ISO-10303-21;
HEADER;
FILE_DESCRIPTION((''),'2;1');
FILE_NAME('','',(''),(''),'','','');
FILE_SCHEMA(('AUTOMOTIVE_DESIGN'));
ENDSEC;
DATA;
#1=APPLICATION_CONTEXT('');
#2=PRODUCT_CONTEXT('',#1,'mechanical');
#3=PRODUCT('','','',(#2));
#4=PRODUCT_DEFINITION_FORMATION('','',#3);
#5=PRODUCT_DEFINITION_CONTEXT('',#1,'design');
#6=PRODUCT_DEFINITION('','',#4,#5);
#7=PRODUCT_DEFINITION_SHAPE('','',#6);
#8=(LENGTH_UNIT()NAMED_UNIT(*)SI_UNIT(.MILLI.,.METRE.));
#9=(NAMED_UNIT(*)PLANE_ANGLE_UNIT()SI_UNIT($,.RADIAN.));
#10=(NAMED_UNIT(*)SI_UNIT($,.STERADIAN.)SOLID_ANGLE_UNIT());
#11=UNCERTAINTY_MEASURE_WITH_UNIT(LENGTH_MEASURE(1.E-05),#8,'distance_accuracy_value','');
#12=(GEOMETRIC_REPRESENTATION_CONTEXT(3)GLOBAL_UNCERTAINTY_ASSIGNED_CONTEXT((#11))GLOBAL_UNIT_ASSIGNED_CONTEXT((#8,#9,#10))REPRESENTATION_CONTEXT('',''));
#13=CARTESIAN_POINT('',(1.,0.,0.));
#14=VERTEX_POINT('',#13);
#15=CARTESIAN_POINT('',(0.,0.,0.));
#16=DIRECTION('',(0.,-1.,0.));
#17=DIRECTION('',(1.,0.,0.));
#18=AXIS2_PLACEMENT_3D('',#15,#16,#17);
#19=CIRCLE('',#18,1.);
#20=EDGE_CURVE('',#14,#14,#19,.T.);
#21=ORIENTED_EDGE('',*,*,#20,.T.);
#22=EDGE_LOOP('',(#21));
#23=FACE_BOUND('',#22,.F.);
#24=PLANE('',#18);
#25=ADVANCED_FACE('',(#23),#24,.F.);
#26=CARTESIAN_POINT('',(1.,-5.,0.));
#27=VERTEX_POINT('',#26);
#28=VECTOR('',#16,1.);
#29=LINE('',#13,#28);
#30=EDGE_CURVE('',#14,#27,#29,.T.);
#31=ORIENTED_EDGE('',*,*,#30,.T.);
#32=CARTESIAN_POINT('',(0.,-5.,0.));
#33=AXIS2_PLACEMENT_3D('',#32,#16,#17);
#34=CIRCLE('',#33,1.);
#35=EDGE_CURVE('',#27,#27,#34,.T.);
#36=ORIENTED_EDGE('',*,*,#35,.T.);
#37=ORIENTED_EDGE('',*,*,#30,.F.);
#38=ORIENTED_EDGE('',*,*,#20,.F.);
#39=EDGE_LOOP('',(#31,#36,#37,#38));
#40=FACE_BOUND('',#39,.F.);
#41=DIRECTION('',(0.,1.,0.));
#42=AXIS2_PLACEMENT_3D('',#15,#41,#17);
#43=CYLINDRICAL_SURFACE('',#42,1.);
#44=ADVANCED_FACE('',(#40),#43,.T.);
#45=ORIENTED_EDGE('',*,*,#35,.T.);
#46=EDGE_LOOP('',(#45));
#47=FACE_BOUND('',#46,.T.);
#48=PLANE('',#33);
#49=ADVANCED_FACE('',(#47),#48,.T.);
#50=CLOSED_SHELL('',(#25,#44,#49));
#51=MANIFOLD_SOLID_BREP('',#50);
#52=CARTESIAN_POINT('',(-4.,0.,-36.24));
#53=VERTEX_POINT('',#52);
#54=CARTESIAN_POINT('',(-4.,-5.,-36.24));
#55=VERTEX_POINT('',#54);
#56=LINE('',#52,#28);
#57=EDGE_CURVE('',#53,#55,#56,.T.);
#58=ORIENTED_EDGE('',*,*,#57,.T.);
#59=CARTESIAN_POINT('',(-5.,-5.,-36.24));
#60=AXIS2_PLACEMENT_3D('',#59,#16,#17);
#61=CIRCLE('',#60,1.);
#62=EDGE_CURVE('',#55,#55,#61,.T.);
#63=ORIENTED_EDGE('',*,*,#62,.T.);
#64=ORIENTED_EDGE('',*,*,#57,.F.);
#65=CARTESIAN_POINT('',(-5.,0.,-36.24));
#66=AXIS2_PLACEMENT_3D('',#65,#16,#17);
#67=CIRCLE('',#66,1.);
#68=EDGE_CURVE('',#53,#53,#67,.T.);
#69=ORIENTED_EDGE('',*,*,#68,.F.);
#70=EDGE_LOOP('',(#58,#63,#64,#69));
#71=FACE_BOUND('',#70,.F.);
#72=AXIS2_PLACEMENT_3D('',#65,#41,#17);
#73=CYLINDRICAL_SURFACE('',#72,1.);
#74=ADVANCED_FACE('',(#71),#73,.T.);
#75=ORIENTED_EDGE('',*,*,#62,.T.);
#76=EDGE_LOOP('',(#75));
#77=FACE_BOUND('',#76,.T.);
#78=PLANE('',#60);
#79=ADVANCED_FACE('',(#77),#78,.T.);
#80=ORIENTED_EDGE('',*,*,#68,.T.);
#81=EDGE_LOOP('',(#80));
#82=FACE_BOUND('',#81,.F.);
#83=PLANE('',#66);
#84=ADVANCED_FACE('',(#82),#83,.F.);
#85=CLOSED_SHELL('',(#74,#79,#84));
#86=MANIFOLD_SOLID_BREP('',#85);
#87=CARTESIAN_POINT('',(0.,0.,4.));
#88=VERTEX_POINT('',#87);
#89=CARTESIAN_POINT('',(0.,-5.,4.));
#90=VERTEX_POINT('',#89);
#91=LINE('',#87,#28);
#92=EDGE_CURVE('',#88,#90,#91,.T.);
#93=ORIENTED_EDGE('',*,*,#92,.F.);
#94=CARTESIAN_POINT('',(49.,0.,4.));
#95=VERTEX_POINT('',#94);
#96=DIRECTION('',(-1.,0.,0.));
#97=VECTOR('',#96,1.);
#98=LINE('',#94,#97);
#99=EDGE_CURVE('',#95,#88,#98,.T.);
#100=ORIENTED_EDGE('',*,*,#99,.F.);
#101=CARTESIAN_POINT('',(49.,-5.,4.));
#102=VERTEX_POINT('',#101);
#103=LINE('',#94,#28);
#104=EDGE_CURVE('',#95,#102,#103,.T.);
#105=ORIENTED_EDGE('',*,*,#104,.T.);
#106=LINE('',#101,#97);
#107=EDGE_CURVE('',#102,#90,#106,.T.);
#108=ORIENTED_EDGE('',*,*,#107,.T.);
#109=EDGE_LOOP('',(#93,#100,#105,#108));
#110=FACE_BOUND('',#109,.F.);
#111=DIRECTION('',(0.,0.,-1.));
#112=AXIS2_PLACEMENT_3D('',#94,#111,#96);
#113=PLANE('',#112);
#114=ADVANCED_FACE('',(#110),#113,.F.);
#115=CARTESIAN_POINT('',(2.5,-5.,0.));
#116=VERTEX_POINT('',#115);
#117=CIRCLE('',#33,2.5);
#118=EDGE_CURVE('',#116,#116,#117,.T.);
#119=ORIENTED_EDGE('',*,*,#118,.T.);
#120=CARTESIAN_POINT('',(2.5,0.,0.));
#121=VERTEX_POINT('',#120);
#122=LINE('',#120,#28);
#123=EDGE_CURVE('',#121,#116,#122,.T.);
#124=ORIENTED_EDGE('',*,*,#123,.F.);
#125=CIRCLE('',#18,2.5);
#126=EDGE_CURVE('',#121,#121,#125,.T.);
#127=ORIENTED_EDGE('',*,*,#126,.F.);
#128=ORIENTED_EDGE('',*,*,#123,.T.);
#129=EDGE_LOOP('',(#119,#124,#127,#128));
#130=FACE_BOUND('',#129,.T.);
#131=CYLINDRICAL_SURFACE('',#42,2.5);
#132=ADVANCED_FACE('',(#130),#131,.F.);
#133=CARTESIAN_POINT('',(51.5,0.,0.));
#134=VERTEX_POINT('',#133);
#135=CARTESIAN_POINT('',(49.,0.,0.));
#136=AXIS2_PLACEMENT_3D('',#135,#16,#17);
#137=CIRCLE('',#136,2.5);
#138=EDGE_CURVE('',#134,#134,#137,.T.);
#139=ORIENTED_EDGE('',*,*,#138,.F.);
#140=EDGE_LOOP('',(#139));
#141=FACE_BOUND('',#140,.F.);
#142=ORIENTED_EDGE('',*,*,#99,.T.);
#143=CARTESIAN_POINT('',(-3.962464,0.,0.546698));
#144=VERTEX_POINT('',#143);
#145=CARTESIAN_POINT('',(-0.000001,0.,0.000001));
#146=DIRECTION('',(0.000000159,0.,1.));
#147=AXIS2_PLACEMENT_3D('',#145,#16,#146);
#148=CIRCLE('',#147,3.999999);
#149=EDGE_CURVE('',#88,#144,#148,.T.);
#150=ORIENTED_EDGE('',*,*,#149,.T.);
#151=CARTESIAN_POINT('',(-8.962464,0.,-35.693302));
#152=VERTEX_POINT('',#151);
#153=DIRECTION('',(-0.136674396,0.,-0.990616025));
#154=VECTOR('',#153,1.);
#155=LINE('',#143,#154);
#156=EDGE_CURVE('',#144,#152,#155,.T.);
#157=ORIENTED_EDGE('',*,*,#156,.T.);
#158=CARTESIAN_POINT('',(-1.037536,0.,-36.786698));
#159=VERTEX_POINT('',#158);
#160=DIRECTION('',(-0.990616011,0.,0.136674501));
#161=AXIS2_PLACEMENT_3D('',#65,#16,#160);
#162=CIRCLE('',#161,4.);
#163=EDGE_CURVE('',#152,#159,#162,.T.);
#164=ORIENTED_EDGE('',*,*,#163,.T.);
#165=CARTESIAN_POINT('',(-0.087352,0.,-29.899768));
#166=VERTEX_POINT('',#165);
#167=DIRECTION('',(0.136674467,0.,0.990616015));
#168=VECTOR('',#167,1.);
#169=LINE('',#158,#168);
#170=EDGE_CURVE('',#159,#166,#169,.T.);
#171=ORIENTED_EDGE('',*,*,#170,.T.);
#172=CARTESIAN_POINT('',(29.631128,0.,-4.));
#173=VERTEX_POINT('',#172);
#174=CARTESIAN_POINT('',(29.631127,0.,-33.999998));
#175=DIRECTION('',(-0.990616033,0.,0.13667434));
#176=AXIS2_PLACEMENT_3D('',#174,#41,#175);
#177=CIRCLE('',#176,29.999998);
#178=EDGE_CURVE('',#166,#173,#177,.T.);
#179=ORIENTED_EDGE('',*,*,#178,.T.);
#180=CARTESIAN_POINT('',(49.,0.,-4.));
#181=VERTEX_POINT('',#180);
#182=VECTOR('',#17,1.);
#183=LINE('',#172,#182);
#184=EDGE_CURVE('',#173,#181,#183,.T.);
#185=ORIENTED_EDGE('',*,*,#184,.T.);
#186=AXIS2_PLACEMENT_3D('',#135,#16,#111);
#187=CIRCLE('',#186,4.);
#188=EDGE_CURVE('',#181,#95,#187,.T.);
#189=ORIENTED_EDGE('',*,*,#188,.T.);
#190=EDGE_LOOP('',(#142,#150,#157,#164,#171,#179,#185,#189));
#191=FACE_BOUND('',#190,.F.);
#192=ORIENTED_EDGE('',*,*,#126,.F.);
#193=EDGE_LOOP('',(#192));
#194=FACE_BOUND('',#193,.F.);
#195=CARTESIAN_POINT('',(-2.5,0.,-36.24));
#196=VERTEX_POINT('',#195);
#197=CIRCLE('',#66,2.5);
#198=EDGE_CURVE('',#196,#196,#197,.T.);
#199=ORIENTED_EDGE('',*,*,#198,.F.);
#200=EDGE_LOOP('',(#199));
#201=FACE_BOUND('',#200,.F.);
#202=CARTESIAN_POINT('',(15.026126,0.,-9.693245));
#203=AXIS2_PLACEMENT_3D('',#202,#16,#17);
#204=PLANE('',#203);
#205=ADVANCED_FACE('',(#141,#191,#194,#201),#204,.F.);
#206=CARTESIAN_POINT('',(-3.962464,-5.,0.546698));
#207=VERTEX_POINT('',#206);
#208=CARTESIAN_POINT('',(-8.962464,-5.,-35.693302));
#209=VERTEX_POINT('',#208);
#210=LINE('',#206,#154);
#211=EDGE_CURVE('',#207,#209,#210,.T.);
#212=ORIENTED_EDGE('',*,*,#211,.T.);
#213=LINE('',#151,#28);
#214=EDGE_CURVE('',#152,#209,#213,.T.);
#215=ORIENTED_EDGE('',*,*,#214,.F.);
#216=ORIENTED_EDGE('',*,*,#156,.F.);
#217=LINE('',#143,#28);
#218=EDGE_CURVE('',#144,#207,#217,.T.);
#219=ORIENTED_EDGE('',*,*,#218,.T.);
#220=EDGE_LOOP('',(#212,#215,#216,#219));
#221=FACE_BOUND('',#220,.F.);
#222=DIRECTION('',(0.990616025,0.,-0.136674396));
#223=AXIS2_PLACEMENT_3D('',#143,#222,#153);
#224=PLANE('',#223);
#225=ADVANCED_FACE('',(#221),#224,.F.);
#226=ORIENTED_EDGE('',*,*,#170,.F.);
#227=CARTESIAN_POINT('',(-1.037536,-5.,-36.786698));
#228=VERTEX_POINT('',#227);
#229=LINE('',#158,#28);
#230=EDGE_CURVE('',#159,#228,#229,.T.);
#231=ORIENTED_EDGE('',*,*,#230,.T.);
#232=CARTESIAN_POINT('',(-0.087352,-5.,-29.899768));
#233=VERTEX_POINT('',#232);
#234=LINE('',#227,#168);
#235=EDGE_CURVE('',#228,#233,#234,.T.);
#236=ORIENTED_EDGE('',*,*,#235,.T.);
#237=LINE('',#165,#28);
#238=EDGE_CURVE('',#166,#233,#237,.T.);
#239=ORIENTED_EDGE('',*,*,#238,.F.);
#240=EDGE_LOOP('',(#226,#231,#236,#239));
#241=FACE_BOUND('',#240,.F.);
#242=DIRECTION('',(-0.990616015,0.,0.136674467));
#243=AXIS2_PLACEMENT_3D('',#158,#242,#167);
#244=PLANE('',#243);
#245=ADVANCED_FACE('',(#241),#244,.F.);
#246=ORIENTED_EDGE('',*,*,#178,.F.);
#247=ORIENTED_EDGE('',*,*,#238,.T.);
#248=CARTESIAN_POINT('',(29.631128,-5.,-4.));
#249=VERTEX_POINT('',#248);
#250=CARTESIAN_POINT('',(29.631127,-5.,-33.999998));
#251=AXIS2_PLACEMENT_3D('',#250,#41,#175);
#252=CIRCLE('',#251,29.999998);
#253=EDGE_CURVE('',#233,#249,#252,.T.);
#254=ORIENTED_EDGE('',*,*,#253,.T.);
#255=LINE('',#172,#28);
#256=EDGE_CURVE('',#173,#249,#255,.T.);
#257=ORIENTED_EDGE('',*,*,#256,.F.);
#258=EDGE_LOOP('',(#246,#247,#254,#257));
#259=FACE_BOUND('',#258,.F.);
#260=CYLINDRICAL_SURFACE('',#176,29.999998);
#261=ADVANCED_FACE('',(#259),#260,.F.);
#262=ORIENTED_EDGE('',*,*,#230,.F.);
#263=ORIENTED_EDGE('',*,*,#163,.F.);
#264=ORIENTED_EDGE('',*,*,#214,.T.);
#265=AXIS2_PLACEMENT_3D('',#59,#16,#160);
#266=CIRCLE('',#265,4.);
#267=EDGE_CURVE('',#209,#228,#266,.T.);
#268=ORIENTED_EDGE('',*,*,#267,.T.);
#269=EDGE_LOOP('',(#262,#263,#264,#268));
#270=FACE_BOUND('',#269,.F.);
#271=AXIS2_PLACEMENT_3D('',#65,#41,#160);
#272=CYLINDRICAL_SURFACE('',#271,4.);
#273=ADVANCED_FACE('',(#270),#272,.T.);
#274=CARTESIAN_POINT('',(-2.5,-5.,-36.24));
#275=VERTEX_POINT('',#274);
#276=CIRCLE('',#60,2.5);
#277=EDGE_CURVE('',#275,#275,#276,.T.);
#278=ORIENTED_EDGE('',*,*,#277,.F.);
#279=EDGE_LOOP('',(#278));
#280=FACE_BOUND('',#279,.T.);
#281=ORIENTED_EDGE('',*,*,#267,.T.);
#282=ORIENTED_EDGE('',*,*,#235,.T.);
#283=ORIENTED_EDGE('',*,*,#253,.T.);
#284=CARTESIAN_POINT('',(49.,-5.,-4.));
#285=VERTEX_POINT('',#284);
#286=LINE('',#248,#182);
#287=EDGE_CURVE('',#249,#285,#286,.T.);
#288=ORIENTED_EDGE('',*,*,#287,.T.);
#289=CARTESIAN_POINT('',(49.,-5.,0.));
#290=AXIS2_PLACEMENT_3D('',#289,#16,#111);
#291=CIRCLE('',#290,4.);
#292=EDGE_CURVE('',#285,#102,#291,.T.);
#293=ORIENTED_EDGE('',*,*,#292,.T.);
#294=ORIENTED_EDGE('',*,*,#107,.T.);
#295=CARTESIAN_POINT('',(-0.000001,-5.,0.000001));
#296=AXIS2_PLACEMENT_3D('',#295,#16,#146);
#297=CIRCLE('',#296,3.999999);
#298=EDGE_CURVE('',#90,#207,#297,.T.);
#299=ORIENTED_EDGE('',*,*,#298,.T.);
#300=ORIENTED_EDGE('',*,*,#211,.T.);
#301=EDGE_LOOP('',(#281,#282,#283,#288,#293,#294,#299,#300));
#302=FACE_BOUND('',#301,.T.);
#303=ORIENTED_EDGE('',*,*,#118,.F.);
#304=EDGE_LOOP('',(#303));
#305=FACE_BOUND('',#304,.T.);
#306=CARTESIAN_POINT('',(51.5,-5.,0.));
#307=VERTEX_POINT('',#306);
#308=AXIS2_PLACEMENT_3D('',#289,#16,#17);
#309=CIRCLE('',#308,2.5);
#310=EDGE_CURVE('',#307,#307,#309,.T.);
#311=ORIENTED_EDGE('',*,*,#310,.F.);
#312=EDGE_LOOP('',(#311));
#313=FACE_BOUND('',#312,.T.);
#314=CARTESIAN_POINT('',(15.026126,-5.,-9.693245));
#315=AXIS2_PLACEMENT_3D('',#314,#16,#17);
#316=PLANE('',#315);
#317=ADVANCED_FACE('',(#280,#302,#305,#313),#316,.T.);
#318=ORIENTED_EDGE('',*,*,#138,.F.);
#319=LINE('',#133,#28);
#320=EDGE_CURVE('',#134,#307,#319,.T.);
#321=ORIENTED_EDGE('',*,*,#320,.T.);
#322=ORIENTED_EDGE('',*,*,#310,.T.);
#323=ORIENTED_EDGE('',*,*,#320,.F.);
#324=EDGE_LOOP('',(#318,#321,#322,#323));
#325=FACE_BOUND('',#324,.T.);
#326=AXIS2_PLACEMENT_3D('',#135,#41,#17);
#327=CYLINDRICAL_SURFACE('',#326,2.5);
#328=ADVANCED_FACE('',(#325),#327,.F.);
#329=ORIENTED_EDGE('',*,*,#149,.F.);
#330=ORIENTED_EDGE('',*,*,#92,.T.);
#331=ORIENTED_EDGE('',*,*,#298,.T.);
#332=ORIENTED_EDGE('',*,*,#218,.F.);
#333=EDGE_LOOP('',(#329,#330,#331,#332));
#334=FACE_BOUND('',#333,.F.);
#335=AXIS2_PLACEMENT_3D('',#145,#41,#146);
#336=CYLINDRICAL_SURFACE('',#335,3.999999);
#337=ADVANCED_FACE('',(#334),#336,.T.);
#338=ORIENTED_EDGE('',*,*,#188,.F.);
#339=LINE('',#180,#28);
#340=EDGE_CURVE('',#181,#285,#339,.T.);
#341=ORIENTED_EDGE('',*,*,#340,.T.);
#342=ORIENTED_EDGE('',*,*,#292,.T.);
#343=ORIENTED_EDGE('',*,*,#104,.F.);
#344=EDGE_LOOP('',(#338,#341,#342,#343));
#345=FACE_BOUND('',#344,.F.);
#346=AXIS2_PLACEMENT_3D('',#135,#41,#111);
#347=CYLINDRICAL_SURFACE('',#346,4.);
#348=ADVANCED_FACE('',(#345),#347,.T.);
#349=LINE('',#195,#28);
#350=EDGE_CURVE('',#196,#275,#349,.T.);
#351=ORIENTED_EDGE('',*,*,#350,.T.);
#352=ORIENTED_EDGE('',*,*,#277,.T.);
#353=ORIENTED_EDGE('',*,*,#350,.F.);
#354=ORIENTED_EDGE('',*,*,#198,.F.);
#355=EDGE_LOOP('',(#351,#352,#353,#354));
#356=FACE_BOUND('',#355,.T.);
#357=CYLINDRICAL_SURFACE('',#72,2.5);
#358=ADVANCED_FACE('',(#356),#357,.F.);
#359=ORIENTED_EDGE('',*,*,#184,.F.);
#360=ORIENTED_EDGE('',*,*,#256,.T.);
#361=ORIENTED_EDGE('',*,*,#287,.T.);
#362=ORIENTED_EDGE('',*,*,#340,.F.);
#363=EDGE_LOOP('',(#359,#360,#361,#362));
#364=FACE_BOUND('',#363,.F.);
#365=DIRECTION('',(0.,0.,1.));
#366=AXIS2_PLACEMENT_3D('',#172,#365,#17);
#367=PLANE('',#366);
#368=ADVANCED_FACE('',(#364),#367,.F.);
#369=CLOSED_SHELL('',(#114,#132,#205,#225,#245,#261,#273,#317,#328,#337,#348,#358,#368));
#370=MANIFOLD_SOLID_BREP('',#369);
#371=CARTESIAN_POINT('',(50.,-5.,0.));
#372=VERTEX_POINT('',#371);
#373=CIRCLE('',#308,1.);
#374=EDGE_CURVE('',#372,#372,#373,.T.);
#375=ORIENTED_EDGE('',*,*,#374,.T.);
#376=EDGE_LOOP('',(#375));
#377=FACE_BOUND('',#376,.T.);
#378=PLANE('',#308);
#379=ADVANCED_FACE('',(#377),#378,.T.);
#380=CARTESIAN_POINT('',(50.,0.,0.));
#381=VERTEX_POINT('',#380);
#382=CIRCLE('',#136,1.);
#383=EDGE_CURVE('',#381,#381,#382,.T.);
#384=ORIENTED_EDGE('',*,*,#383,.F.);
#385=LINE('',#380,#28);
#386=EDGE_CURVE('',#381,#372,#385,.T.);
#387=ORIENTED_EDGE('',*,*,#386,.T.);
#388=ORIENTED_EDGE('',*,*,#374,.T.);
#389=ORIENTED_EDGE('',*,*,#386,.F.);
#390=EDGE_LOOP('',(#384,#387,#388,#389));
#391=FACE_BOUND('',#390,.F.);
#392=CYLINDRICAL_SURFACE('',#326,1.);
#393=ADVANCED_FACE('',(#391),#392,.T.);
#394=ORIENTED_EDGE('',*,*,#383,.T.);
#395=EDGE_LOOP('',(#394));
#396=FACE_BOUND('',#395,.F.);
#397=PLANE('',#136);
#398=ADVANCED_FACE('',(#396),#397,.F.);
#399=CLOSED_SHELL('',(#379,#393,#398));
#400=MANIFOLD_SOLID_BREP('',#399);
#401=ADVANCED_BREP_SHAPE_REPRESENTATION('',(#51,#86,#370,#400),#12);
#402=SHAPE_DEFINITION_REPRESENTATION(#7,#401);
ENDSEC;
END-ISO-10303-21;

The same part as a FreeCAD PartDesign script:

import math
import FreeCAD as App
import Part
import Sketcher
Q = App.Units.Quantity

doc = App.newDocument("Part")
body = doc.addObject("PartDesign::Body", "Body")
body.AllowCompound = True

# Sketch on XZ plane
sketch1 = body.newObject("Sketcher::SketchObject", "Sketch")
sketch1.AttachmentSupport = (doc.getObject("XZ_Plane"), [""])
sketch1.MapMode = "FlatFace"
sketch1.addGeometry([
    Part.LineSegment(App.Vector(49, 4, 0), App.Vector(0, 4, 0)),  # 0
    Part.ArcOfCircle(Part.Circle(App.Vector(0, 0, 0), App.Vector(0, 0, 1), 4), math.radians(90), math.radians(172)),  # 1
    Part.LineSegment(App.Vector(-4, 0.5, 0), App.Vector(-9, -35.7, 0)),  # 2
    Part.ArcOfCircle(Part.Circle(App.Vector(-5, -36.2, 0), App.Vector(0, 0, 1), 4), math.radians(172), math.radians(352)),  # 3
    Part.LineSegment(App.Vector(-1, -36.8, 0), App.Vector(-0.1, -29.9, 0)),  # 4
    Part.ArcOfCircle(Part.Circle(App.Vector(29.6, -34, 0), App.Vector(0, 0, 1), 30), math.radians(90), math.radians(172)),  # 5
    Part.LineSegment(App.Vector(29.6, -4, 0), App.Vector(49, -4, 0)),  # 6
    Part.ArcOfCircle(Part.Circle(App.Vector(49, 0, 0), App.Vector(0, 0, 1), 4), math.radians(-90), math.radians(90)),  # 7
    Part.Circle(App.Vector(-5, -36.2, 0), App.Vector(0, 0, 1), 2.5),  # 8
    Part.Circle(App.Vector(0, 0, 0), App.Vector(0, 0, 1), 2.5),  # 9
    Part.Circle(App.Vector(49, 0, 0), App.Vector(0, 0, 1), 2.5),  # 10
    Part.Circle(App.Vector(-5, -36.2, 0), App.Vector(0, 0, 1), 1),  # 11
    Part.Circle(App.Vector(49, 0, 0), App.Vector(0, 0, 1), 1),  # 12
    Part.Circle(App.Vector(0, 0, 0), App.Vector(0, 0, 1), 1),  # 13
], False)
sketch1.addConstraint([
    Sketcher.Constraint("Tangent", 0, 2, 1, 1),
    Sketcher.Constraint("Tangent", 1, 2, 2, 1),
    Sketcher.Constraint("Tangent", 2, 2, 3, 1),
    Sketcher.Constraint("Tangent", 3, 2, 4, 1),
    Sketcher.Constraint("Tangent", 4, 2, 5, 2),
    Sketcher.Constraint("Tangent", 5, 1, 6, 1),
    Sketcher.Constraint("Tangent", 6, 2, 7, 1),
    Sketcher.Constraint("Tangent", 7, 2, 0, 1),
    Sketcher.Constraint("Horizontal", 0),
    Sketcher.Constraint("Horizontal", 6),
    Sketcher.Constraint("Coincident", 1, 3, -1, 1),
    Sketcher.Constraint("Coincident", 9, 3, -1, 1),
    Sketcher.Constraint("Coincident", 13, 3, -1, 1),
    Sketcher.Constraint("Coincident", 8, 3, 3, 3),
    Sketcher.Constraint("Coincident", 10, 3, 7, 3),
    Sketcher.Constraint("Coincident", 11, 3, 3, 3),
    Sketcher.Constraint("Coincident", 12, 3, 7, 3),
    Sketcher.Constraint("Equal", 1, 3),
    Sketcher.Constraint("Equal", 3, 7),
    Sketcher.Constraint("Equal", 8, 9),
    Sketcher.Constraint("Equal", 9, 10),
    Sketcher.Constraint("Equal", 11, 12),
    Sketcher.Constraint("Equal", 12, 13),
    Sketcher.Constraint("Parallel", 2, 4),
    Sketcher.Constraint("Diameter", 8, Q("5 mm")),
    Sketcher.Constraint("Diameter", 11, Q("2 mm")),
    Sketcher.Constraint("Radius", 1, Q("3.999999 mm")),
    Sketcher.Constraint("DistanceX", 0, 2, 0, 1, Q("49 mm")),
    Sketcher.Constraint("DistanceX", 3, 3, -1, 1, Q("5 mm")),
    Sketcher.Constraint("DistanceY", 5, 3, 1, 3, Q("33.999999 mm")),
    Sketcher.Constraint("DistanceY", 3, 3, -1, 1, Q("36.24 mm")),
])
pad1 = body.newObject("PartDesign::Pad", "Pad")
pad1.Profile = sketch1
pad1.Length = 5

doc.recompute()
